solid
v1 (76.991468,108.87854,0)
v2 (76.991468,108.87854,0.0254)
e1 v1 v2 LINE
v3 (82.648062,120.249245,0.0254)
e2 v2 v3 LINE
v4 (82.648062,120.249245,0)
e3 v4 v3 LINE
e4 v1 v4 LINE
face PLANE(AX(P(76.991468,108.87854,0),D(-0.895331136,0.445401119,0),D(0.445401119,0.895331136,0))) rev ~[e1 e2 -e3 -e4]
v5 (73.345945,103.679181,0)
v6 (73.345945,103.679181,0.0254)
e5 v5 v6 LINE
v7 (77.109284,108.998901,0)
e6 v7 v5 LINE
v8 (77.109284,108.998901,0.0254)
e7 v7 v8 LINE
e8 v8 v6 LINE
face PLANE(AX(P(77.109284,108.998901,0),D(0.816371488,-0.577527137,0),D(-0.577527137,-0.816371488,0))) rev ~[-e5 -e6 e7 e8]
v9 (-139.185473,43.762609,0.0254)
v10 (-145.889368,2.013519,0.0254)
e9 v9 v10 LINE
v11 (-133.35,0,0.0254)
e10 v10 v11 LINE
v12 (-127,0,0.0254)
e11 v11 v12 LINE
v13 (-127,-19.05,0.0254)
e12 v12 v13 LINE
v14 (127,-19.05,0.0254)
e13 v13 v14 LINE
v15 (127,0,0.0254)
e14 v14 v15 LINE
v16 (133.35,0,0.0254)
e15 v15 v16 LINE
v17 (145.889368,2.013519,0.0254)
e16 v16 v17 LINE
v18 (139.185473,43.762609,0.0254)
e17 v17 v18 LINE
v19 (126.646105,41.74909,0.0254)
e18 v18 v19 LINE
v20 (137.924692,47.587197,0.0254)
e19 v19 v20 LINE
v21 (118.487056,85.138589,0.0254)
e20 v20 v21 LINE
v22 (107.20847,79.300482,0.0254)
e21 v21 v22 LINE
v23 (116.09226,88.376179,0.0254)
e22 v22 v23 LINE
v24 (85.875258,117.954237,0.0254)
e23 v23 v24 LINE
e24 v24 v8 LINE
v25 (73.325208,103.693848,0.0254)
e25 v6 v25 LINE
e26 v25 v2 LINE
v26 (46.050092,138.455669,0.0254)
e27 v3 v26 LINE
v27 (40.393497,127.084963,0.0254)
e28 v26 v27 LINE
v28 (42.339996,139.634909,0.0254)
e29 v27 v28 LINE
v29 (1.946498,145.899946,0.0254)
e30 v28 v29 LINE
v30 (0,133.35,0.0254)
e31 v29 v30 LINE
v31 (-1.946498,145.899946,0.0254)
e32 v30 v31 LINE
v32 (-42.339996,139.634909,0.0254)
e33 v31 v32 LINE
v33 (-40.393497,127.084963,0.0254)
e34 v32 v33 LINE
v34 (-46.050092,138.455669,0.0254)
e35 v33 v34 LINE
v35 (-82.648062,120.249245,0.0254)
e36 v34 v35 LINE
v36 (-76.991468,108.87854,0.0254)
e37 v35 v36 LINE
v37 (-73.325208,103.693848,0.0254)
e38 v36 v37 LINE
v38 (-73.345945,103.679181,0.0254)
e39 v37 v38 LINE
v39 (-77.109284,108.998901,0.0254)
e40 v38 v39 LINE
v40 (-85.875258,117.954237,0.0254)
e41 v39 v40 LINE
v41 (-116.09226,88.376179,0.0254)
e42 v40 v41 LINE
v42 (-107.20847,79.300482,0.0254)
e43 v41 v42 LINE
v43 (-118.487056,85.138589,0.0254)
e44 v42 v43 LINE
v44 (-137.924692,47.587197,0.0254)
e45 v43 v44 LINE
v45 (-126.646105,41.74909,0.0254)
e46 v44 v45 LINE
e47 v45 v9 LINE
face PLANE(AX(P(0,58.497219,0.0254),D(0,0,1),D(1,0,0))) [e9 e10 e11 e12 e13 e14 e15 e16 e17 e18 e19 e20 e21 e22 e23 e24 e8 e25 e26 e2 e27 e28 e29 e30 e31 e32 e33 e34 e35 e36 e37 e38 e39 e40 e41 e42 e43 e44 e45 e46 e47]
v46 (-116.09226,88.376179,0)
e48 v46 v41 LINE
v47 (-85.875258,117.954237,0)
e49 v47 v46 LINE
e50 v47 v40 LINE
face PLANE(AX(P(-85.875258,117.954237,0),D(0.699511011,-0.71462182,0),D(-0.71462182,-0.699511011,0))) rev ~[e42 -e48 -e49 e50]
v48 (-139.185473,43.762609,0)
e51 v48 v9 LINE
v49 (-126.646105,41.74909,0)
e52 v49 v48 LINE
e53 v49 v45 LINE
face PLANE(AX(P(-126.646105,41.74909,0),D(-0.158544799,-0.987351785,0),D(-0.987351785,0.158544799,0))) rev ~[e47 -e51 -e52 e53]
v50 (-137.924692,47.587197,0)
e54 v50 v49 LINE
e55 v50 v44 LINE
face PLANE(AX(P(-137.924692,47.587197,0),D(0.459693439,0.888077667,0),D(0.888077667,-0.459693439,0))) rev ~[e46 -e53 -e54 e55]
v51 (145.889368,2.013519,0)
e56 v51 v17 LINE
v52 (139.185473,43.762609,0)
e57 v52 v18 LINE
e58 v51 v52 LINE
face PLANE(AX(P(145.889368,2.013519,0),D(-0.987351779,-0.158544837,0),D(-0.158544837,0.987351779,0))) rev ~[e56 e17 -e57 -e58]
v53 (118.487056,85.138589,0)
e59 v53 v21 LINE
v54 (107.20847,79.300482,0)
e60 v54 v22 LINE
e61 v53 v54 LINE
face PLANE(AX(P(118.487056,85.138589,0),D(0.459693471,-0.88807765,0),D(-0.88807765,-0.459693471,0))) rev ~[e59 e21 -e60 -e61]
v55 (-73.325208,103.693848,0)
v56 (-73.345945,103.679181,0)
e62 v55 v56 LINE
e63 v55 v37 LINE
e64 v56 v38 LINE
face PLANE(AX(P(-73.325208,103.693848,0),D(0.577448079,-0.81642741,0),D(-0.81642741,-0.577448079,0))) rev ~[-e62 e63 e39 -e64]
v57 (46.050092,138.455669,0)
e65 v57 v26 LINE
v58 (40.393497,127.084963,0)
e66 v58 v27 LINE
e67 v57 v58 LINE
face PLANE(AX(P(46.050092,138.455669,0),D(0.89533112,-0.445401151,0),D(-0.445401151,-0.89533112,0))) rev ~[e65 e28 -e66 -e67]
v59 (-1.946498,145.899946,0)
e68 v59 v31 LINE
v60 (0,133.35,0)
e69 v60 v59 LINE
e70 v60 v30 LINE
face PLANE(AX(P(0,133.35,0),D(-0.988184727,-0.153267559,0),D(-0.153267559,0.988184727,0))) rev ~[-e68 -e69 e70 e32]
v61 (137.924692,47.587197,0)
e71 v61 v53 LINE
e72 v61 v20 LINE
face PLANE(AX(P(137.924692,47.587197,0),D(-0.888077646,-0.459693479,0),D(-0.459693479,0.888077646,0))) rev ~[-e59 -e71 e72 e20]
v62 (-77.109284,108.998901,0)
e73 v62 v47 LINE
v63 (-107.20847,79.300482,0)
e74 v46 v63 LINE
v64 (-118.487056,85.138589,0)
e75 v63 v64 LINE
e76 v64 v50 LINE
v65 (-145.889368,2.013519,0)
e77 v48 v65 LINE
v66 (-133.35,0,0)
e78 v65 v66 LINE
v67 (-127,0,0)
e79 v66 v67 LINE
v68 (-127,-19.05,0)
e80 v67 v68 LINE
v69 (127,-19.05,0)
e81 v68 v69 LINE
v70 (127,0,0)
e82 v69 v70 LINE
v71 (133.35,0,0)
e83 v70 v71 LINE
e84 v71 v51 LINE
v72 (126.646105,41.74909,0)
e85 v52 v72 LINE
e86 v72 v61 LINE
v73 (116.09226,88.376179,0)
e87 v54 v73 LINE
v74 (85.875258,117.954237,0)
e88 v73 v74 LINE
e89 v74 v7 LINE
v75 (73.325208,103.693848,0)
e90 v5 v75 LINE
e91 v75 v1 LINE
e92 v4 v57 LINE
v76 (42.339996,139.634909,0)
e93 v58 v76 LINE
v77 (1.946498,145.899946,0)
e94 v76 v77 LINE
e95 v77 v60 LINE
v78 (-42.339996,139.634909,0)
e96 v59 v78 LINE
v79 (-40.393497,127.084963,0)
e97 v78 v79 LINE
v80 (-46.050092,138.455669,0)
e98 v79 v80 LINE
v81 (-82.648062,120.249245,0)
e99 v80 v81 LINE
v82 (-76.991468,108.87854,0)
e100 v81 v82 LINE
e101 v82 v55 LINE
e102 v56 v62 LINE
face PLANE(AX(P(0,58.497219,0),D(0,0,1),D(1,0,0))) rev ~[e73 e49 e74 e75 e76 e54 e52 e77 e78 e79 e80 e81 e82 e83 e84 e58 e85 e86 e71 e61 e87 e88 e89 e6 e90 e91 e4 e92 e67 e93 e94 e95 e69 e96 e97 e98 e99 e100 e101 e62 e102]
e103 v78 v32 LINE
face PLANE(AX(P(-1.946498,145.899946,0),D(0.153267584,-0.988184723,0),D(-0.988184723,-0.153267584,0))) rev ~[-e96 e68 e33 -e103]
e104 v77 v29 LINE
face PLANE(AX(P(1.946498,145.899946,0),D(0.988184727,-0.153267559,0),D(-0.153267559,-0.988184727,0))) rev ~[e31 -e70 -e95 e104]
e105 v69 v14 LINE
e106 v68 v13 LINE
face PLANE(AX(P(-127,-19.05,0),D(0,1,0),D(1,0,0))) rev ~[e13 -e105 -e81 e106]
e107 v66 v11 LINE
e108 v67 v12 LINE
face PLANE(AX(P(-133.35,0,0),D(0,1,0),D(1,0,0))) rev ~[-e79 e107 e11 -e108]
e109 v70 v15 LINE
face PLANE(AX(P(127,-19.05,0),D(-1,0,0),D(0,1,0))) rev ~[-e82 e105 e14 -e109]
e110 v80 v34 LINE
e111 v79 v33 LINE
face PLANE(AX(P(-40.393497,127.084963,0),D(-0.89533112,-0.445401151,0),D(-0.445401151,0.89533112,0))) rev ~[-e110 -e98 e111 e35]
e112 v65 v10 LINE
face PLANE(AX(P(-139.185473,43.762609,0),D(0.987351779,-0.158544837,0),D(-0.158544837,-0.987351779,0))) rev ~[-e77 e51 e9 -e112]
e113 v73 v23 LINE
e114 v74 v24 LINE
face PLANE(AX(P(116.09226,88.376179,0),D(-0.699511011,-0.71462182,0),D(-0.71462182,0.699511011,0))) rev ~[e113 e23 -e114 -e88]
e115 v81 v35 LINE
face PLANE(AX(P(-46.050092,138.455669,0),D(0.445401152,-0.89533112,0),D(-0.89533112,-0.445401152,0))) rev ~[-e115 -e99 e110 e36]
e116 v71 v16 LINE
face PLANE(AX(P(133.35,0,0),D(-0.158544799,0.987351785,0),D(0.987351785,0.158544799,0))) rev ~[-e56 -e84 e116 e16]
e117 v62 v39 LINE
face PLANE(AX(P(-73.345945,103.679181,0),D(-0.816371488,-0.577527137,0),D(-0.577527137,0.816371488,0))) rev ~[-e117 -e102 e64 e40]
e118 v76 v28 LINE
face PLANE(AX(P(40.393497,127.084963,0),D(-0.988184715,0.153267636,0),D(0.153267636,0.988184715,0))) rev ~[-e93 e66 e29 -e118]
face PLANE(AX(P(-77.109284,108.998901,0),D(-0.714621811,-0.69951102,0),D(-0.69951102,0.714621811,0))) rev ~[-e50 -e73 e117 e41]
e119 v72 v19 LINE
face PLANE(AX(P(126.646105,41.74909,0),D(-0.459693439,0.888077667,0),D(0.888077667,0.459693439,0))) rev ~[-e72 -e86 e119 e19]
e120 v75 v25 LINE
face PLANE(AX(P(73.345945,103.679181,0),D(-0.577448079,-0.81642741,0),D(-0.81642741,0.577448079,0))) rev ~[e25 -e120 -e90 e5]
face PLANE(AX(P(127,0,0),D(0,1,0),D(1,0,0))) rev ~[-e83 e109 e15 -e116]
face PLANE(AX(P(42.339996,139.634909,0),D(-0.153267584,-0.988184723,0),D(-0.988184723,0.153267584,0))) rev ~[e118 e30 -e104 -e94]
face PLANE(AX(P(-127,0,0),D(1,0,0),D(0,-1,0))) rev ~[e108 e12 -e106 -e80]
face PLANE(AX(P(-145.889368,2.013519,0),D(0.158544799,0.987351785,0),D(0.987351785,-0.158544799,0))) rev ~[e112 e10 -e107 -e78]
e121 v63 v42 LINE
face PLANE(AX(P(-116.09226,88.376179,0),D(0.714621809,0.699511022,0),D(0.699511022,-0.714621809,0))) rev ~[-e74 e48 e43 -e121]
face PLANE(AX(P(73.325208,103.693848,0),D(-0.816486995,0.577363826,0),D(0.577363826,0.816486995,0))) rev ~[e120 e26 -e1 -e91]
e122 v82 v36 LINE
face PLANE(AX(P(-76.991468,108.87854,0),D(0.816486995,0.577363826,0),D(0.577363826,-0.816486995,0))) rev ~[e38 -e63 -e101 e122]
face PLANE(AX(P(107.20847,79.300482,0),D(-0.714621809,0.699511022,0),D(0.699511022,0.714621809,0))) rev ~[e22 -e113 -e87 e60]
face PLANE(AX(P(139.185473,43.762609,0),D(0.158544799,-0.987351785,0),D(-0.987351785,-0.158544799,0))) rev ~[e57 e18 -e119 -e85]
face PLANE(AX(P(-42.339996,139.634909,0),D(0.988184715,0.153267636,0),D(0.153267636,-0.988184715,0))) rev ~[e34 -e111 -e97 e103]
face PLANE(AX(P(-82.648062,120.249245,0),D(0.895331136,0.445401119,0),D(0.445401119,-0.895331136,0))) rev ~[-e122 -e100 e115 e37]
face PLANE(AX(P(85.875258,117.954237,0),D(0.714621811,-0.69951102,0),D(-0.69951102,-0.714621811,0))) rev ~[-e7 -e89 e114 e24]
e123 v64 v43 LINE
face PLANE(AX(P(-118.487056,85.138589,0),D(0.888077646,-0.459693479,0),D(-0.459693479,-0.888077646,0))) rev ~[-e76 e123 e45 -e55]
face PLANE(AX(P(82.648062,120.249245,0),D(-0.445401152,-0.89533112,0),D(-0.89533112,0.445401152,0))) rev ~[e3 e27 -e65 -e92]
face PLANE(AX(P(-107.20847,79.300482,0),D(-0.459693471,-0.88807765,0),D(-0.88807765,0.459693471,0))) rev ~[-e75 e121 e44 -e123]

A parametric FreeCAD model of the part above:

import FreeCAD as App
import Part
import Sketcher

V = App.Vector
Q = App.Units.Quantity

doc = App.newDocument("Part")
body = doc.addObject("PartDesign::Body", "Body")

sketch1 = doc.addObject("Sketcher::SketchObject", "Sketch")
body.addObject(sketch1)
sketch1.AttachmentSupport = (doc.XY_Plane, [""])
sketch1.MapMode = "FlatFace"
sketch1.addGeometry(Part.LineSegment(V(127, -19.05, 0), V(127, 0, 0)), False)
sketch1.addGeometry(Part.LineSegment(V(127, 0, 0), V(133.35, 0, 0)), False)
sketch1.addGeometry(Part.LineSegment(V(133.35, 0, 0), V(145.889, 2.014, 0)), False)
sketch1.addGeometry(Part.LineSegment(V(145.889, 2.014, 0), V(139.185, 43.763, 0)), False)
sketch1.addGeometry(Part.LineSegment(V(139.185, 43.763, 0), V(126.646, 41.749, 0)), False)
sketch1.addGeometry(Part.LineSegment(V(126.646, 41.749, 0), V(137.925, 47.587, 0)), False)
sketch1.addGeometry(Part.LineSegment(V(137.925, 47.587, 0), V(118.487, 85.139, 0)), False)
sketch1.addGeometry(Part.LineSegment(V(118.487, 85.139, 0), V(107.208, 79.3, 0)), False)
sketch1.addGeometry(Part.LineSegment(V(107.208, 79.3, 0), V(116.092, 88.376, 0)), False)
sketch1.addGeometry(Part.LineSegment(V(116.092, 88.376, 0), V(85.875, 117.954, 0)), False)
sketch1.addGeometry(Part.LineSegment(V(85.875, 117.954, 0), V(77.109, 108.999, 0)), False)
sketch1.addGeometry(Part.LineSegment(V(77.109, 108.999, 0), V(73.346, 103.679, 0)), False)
sketch1.addGeometry(Part.LineSegment(V(73.346, 103.679, 0), V(73.325, 103.694, 0)), False)
sketch1.addGeometry(Part.LineSegment(V(73.325, 103.694, 0), V(76.991, 108.879, 0)), False)
sketch1.addGeometry(Part.LineSegment(V(76.991, 108.879, 0), V(82.648, 120.249, 0)), False)
sketch1.addGeometry(Part.LineSegment(V(82.648, 120.249, 0), V(46.05, 138.456, 0)), False)
sketch1.addGeometry(Part.LineSegment(V(46.05, 138.456, 0), V(40.393, 127.085, 0)), False)
sketch1.addGeometry(Part.LineSegment(V(40.393, 127.085, 0), V(42.34, 139.635, 0)), False)
sketch1.addGeometry(Part.LineSegment(V(42.34, 139.635, 0), V(1.946, 145.9, 0)), False)
sketch1.addGeometry(Part.LineSegment(V(1.946, 145.9, 0), V(0, 133.35, 0)), False)
sketch1.addGeometry(Part.LineSegment(V(0, 133.35, 0), V(-1.946, 145.9, 0)), False)
sketch1.addGeometry(Part.LineSegment(V(-1.946, 145.9, 0), V(-42.34, 139.635, 0)), False)
sketch1.addGeometry(Part.LineSegment(V(-42.34, 139.635, 0), V(-40.393, 127.085, 0)), False)
sketch1.addGeometry(Part.LineSegment(V(-40.393, 127.085, 0), V(-46.05, 138.456, 0)), False)
sketch1.addGeometry(Part.LineSegment(V(-46.05, 138.456, 0), V(-82.648, 120.249, 0)), False)
sketch1.addGeometry(Part.LineSegment(V(-82.648, 120.249, 0), V(-76.991, 108.879, 0)), False)
sketch1.addGeometry(Part.LineSegment(V(-76.991, 108.879, 0), V(-73.325, 103.694, 0)), False)
sketch1.addGeometry(Part.LineSegment(V(-73.325, 103.694, 0), V(-73.346, 103.679, 0)), False)
sketch1.addGeometry(Part.LineSegment(V(-73.346, 103.679, 0), V(-77.109, 108.999, 0)), False)
sketch1.addGeometry(Part.LineSegment(V(-77.109, 108.999, 0), V(-85.875, 117.954, 0)), False)
sketch1.addGeometry(Part.LineSegment(V(-85.875, 117.954, 0), V(-116.092, 88.376, 0)), False)
sketch1.addGeometry(Part.LineSegment(V(-116.092, 88.376, 0), V(-107.208, 79.3, 0)), False)
sketch1.addGeometry(Part.LineSegment(V(-107.208, 79.3, 0), V(-118.487, 85.139, 0)), False)
sketch1.addGeometry(Part.LineSegment(V(-118.487, 85.139, 0), V(-137.925, 47.587, 0)), False)
sketch1.addGeometry(Part.LineSegment(V(-137.925, 47.587, 0), V(-126.646, 41.749, 0)), False)
sketch1.addGeometry(Part.LineSegment(V(-126.646, 41.749, 0), V(-139.185, 43.763, 0)), False)
sketch1.addGeometry(Part.LineSegment(V(-139.185, 43.763, 0), V(-145.889, 2.014, 0)), False)
sketch1.addGeometry(Part.LineSegment(V(-145.889, 2.014, 0), V(-133.35, 0, 0)), False)
sketch1.addGeometry(Part.LineSegment(V(-133.35, 0, 0), V(-127, 0, 0)), False)
sketch1.addGeometry(Part.LineSegment(V(-127, 0, 0), V(-127, -19.05, 0)), False)
sketch1.addGeometry(Part.LineSegment(V(-127, -19.05, 0), V(127, -19.05, 0)), False)
sketch1.addConstraint(Sketcher.Constraint("Coincident", 0, 2, 1, 1))
sketch1.addConstraint(Sketcher.Constraint("Coincident", 1, 2, 2, 1))
sketch1.addConstraint(Sketcher.Constraint("Coincident", 2, 2, 3, 1))
sketch1.addConstraint(Sketcher.Constraint("Coincident", 3, 2, 4, 1))
sketch1.addConstraint(Sketcher.Constraint("Coincident", 4, 2, 5, 1))
sketch1.addConstraint(Sketcher.Constraint("Coincident", 5, 2, 6, 1))
sketch1.addConstraint(Sketcher.Constraint("Coincident", 6, 2, 7, 1))
sketch1.addConstraint(Sketcher.Constraint("Coincident", 7, 2, 8, 1))
sketch1.addConstraint(Sketcher.Constraint("Coincident", 8, 2, 9, 1))
sketch1.addConstraint(Sketcher.Constraint("Coincident", 9, 2, 10, 1))
sketch1.addConstraint(Sketcher.Constraint("Coincident", 10, 2, 11, 1))
sketch1.addConstraint(Sketcher.Constraint("Coincident", 11, 2, 12, 1))
sketch1.addConstraint(Sketcher.Constraint("Coincident", 12, 2, 13, 1))
sketch1.addConstraint(Sketcher.Constraint("Coincident", 13, 2, 14, 1))
sketch1.addConstraint(Sketcher.Constraint("Coincident", 14, 2, 15, 1))
sketch1.addConstraint(Sketcher.Constraint("Coincident", 15, 2, 16, 1))
sketch1.addConstraint(Sketcher.Constraint("Coincident", 16, 2, 17, 1))
sketch1.addConstraint(Sketcher.Constraint("Coincident", 17, 2, 18, 1))
sketch1.addConstraint(Sketcher.Constraint("Coincident", 18, 2, 19, 1))
sketch1.addConstraint(Sketcher.Constraint("Coincident", 19, 2, 20, 1))
sketch1.addConstraint(Sketcher.Constraint("Coincident", 20, 2, 21, 1))
sketch1.addConstraint(Sketcher.Constraint("Coincident", 21, 2, 22, 1))
sketch1.addConstraint(Sketcher.Constraint("Coincident", 22, 2, 23, 1))
sketch1.addConstraint(Sketcher.Constraint("Coincident", 23, 2, 24, 1))
sketch1.addConstraint(Sketcher.Constraint("Coincident", 24, 2, 25, 1))
sketch1.addConstraint(Sketcher.Constraint("Coincident", 25, 2, 26, 1))
sketch1.addConstraint(Sketcher.Constraint("Coincident", 26, 2, 27, 1))
sketch1.addConstraint(Sketcher.Constraint("Coincident", 27, 2, 28, 1))
sketch1.addConstraint(Sketcher.Constraint("Coincident", 28, 2, 29, 1))
sketch1.addConstraint(Sketcher.Constraint("Coincident", 29, 2, 30, 1))
sketch1.addConstraint(Sketcher.Constraint("Coincident", 30, 2, 31, 1))
sketch1.addConstraint(Sketcher.Constraint("Coincident", 31, 2, 32, 1))
sketch1.addConstraint(Sketcher.Constraint("Coincident", 32, 2, 33, 1))
sketch1.addConstraint(Sketcher.Constraint("Coincident", 33, 2, 34, 1))
sketch1.addConstraint(Sketcher.Constraint("Coincident", 34, 2, 35, 1))
sketch1.addConstraint(Sketcher.Constraint("Coincident", 35, 2, 36, 1))
sketch1.addConstraint(Sketcher.Constraint("Coincident", 36, 2, 37, 1))
sketch1.addConstraint(Sketcher.Constraint("Coincident", 37, 2, 38, 1))
sketch1.addConstraint(Sketcher.Constraint("Coincident", 38, 2, 39, 1))
sketch1.addConstraint(Sketcher.Constraint("Coincident", 39, 2, 40, 1))
sketch1.addConstraint(Sketcher.Constraint("Coincident", 40, 2, 0, 1))
sketch1.addConstraint(Sketcher.Constraint("Vertical", 0))
sketch1.addConstraint(Sketcher.Constraint("Horizontal", 1))
sketch1.addConstraint(Sketcher.Constraint("Horizontal", 38))
sketch1.addConstraint(Sketcher.Constraint("Vertical", 39))
sketch1.addConstraint(Sketcher.Constraint("Horizontal", 40))
sketch1.addConstraint(Sketcher.Constraint("Symmetric", 1, 2, 37, 2, -1, 1))
sketch1.addConstraint(Sketcher.Constraint("Symmetric", 18, 2, 20, 2, -2))
sketch1.addConstraint(Sketcher.Constraint("Symmetric", 17, 2, 21, 2, -2))
sketch1.addConstraint(Sketcher.Constraint("Symmetric", 16, 2, 22, 2, -2))
sketch1.addConstraint(Sketcher.Constraint("Symmetric", 15, 2, 23, 2, -2))
sketch1.addConstraint(Sketcher.Constraint("Symmetric", 14, 2, 24, 2, -2))
sketch1.addConstraint(Sketcher.Constraint("Symmetric", 13, 2, 25, 2, -2))
sketch1.addConstraint(Sketcher.Constraint("Symmetric", 12, 2, 26, 2, -2))
sketch1.addConstraint(Sketcher.Constraint("Symmetric", 11, 2, 27, 2, -2))
sketch1.addConstraint(Sketcher.Constraint("Symmetric", 10, 2, 28, 2, -2))
sketch1.addConstraint(Sketcher.Constraint("Symmetric", 9, 2, 29, 2, -2))
sketch1.addConstraint(Sketcher.Constraint("Symmetric", 8, 2, 30, 2, -2))
sketch1.addConstraint(Sketcher.Constraint("Symmetric", 7, 2, 31, 2, -2))
sketch1.addConstraint(Sketcher.Constraint("Symmetric", 6, 2, 32, 2, -2))
sketch1.addConstraint(Sketcher.Constraint("Symmetric", 5, 2, 33, 2, -2))
sketch1.addConstraint(Sketcher.Constraint("Symmetric", 4, 2, 34, 2, -2))
sketch1.addConstraint(Sketcher.Constraint("Symmetric", 3, 2, 35, 2, -2))
sketch1.addConstraint(Sketcher.Constraint("Symmetric", 2, 2, 36, 2, -2))
sketch1.addConstraint(Sketcher.Constraint("Symmetric", 0, 2, 38, 2, -2))
sketch1.addConstraint(Sketcher.Constraint("PointOnObject", 19, 2, -2))
sketch1.addConstraint(Sketcher.Constraint("Perpendicular", 2, 3))
sketch1.addConstraint(Sketcher.Constraint("Perpendicular", 3, 4))
sketch1.addConstraint(Sketcher.Constraint("Perpendicular", 5, 6))
sketch1.addConstraint(Sketcher.Constraint("Perpendicular", 6, 7))
sketch1.addConstraint(Sketcher.Constraint("Perpendicular", 8, 9))
sketch1.addConstraint(Sketcher.Constraint("Perpendicular", 9, 10))
sketch1.addConstraint(Sketcher.Constraint("Perpendicular", 14, 15))
sketch1.addConstraint(Sketcher.Constraint("Perpendicular", 15, 16))
sketch1.addConstraint(Sketcher.Constraint("Perpendicular", 17, 18))
sketch1.addConstraint(Sketcher.Constraint("Perpendicular", 18, 19))
sketch1.addConstraint(Sketcher.Constraint("Equal", 2, 4))
sketch1.addConstraint(Sketcher.Constraint("Equal", 4, 5))
sketch1.addConstraint(Sketcher.Constraint("Equal", 3, 6))
sketch1.addConstraint(Sketcher.Constraint("Equal", 5, 7))
sketch1.addConstraint(Sketcher.Constraint("Equal", 7, 8))
sketch1.addConstraint(Sketcher.Constraint("Equal", 6, 9))
sketch1.addConstraint(Sketcher.Constraint("Equal", 8, 14))
sketch1.addConstraint(Sketcher.Constraint("Equal", 14, 16))
sketch1.addConstraint(Sketcher.Constraint("Equal", 16, 17))
sketch1.addConstraint(Sketcher.Constraint("Equal", 15, 18))
sketch1.addConstraint(Sketcher.Constraint("Equal", 17, 19))
sketch1.addConstraint(Sketcher.Constraint("DistanceX", 40, 1, 40, 2, Q("10 in")))
sketch1.addConstraint(Sketcher.Constraint("Distance", 2, Q("0.5 in")))
sketch1.addConstraint(Sketcher.Constraint("DistanceX", 1, 1, 1, 2, Q("0.25 in")))
sketch1.addConstraint(Sketcher.Constraint("DistanceY", 0, 1, 0, 2, Q("0.75 in")))
sketch1.addConstraint(Sketcher.Constraint("Distance", 13, Q("0.25 in")))
sketch1.addConstraint(Sketcher.Constraint("DistanceY", -1, 1, 19, 2, Q("5.25 in")))
sketch1.addConstraint(Sketcher.Constraint("Distance", 12, Q("0.001 in")))
sketch1.addConstraint(Sketcher.Constraint("DistanceX", 7, 2, 5, 2, Q("1.2093001 in")))
sketch1.addConstraint(Sketcher.Constraint("Distance", 11, Q("6.516298 mm")))
sketch1.addConstraint(Sketcher.Constraint("DistanceY", -1, 1, 10, 2, Q("108.998901 mm")))
sketch1.addConstraint(Sketcher.Constraint("DistanceX", -1, 1, 18, 2, Q("1.946498 mm")))
sketch1.addConstraint(Sketcher.Constraint("DistanceY", 4, 2, 6, 2, Q("43.389499 mm")))
sketch1.addConstraint(Sketcher.Constraint("DistanceX", 9, 2, 8, 2, Q("30.217002 mm")))
sketch1.addConstraint(Sketcher.Constraint("DistanceY", 7, 2, 11, 2, Q("24.378699 mm")))
sketch1.addConstraint(Sketcher.Constraint("DistanceX", 18, 2, 16, 2, Q("38.446999 mm")))
sketch1.addConstraint(Sketcher.Constraint("DistanceY", 24, 2, 20, 2, Q("25.650701 mm")))
sketch1.addConstraint(Sketcher.Constraint("DistanceY", -1, 1, 2, 2, Q("2.013519 mm")))
pad1 = doc.addObject("PartDesign::Pad", "Pad")
body.addObject(pad1)
pad1.Profile = sketch1
pad1.Length = Q("0.001 in")

doc.recompute()
